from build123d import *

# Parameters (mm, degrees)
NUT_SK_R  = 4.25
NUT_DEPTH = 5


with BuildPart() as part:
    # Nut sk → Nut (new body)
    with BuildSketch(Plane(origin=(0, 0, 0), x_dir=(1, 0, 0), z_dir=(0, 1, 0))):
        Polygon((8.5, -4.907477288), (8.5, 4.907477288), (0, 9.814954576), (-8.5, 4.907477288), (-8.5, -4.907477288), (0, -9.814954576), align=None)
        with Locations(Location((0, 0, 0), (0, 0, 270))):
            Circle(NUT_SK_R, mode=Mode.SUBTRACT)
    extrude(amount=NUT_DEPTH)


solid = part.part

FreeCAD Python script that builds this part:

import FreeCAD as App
import Part
import Sketcher

V = App.Vector
Q = App.Units.Quantity

doc = App.newDocument("Part")
params = doc.addObject("Spreadsheet::Sheet", "Params")
for row, (alias, value) in enumerate([
    ("sketch1_diameter", "8.5 mm"),
    ("pad1_length", "5 mm"),
], start=1):
    params.set(f"A{row}", alias)
    params.set(f"B{row}", "=" + value)
    params.setAlias(f"B{row}", alias)

body = doc.addObject("PartDesign::Body", "Body")

# Sketch on XZ plane
sketch1 = body.newObject("Sketcher::SketchObject", "Sketch")
sketch1.AttachmentSupport = (doc.getObject("XZ_Plane"), [""])
sketch1.MapMode = "FlatFace"
sketch1.addGeometry([
    Part.LineSegment(V(8.5, 4.9, 0), V(8.5, -4.9, 0)),  # 0
    Part.LineSegment(V(8.5, -4.9, 0), V(0, -9.8, 0)),  # 1
    Part.LineSegment(V(0, -9.8, 0), V(-8.5, -4.9, 0)),  # 2
    Part.LineSegment(V(-8.5, -4.9, 0), V(-8.5, 4.9, 0)),  # 3
    Part.LineSegment(V(-8.5, 4.9, 0), V(0, 9.8, 0)),  # 4
    Part.LineSegment(V(0, 9.8, 0), V(8.5, 4.9, 0)),  # 5
    Part.Circle(V(0, 0, 0), V(0, 0, 1), 4.2),  # 6
], False)
sketch1.addConstraint([
    Sketcher.Constraint("Coincident", 0, 2, 1, 1),
    Sketcher.Constraint("Coincident", 1, 2, 2, 1),
    Sketcher.Constraint("Coincident", 2, 2, 3, 1),
    Sketcher.Constraint("Coincident", 3, 2, 4, 1),
    Sketcher.Constraint("Coincident", 4, 2, 5, 1),
    Sketcher.Constraint("Coincident", 5, 2, 0, 1),
    Sketcher.Constraint("Vertical", 0),
    Sketcher.Constraint("Vertical", 3),
    Sketcher.Constraint("Coincident", 6, 3, -1, 1),
    Sketcher.Constraint("Symmetric", 0, 2, 3, 2, -1, 1),
    Sketcher.Constraint("Symmetric", 1, 2, 4, 2, -1, 1),
    Sketcher.Constraint("PointOnObject", 1, 2, -2),
    Sketcher.Constraint("Parallel", 2, 5),
    Sketcher.Constraint("Horizontal", 0, 2, 2, 2),
    Sketcher.Constraint("Diameter", 6, 8.5),
    Sketcher.Constraint("Angle", 1, Q("-150 deg")),
    Sketcher.Constraint("DistanceX", 2, 2, 0, 2, 17.0),
    Sketcher.Constraint("DistanceY", 0, 2, 0, 1, 9.814955),
])
sketch1.setExpression("Constraints[14]", "Params.sketch1_diameter")
pad1 = body.newObject("PartDesign::Pad", "Pad")
pad1.Profile = sketch1
pad1.setExpression("Length", "Params.pad1_length")
pad1.Reversed = True

doc.recompute()
